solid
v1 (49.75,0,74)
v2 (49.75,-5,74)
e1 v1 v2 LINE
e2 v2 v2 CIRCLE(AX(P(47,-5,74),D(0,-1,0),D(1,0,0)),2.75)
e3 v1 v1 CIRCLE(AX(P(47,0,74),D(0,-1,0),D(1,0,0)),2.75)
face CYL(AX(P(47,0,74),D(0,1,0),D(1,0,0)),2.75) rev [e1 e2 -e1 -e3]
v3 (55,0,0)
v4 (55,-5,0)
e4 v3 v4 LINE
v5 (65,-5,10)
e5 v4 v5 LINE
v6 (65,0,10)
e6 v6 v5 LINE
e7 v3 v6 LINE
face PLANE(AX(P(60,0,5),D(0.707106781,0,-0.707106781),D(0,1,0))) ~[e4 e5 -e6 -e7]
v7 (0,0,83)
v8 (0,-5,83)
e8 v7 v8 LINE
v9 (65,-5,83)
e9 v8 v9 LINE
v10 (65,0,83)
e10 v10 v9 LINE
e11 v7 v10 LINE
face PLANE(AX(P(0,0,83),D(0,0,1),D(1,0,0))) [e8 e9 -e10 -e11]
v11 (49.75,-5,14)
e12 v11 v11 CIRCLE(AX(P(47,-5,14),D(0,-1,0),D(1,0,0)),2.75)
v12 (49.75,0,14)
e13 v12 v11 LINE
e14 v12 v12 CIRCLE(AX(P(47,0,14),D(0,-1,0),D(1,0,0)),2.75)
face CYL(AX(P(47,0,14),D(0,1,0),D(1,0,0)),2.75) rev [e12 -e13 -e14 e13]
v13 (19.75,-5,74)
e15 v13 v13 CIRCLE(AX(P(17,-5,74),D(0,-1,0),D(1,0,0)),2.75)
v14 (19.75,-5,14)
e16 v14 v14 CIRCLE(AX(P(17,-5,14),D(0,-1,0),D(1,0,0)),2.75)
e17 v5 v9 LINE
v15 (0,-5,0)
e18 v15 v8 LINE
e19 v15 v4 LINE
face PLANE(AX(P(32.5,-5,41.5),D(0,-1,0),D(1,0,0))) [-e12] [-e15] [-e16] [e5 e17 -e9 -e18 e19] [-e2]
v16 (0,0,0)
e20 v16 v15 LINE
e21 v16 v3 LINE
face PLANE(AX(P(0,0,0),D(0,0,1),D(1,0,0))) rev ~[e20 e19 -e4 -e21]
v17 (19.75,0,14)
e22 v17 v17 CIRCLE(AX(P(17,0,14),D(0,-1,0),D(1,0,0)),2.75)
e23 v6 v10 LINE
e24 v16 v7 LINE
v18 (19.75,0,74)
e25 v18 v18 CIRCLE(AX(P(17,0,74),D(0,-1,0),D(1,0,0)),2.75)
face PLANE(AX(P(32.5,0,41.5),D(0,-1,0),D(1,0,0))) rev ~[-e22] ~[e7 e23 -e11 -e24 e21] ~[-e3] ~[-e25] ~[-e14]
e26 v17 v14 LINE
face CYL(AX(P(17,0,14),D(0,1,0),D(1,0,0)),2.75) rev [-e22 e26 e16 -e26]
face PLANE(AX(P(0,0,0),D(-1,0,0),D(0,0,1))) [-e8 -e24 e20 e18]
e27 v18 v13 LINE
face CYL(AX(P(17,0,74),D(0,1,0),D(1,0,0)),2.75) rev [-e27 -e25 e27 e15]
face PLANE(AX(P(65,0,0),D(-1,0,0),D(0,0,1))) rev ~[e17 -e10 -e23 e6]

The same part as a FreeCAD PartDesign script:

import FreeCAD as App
import Part
import Sketcher


def edges_at(feature, points):
    """Names of the edges that pass closest to the given points."""
    edges = feature.Shape.Edges
    near = lambda p: min(range(len(edges)), key=lambda i: edges[i].distToShape(Part.Vertex(*p))[0])
    return sorted({f"Edge{near(p) + 1}" for p in points})


def add_polygon(sketch, points):
    """Adds a closed chain of lines whose ends are joined by coincident constraints."""
    first, n = sketch.GeometryCount, len(points)
    for a, b in zip(points, points[1:] + points[:1]):
        sketch.addGeometry(Part.LineSegment(App.Vector(*a, 0), App.Vector(*b, 0)), False)
    for i in range(n):
        sketch.addConstraint(Sketcher.Constraint("Coincident", first + i, 2, first + (i + 1) % n, 1))

doc = App.newDocument("Part")
body = doc.addObject("PartDesign::Body", "Body")

# Sketch on XZ plane
sketch1 = body.newObject("Sketcher::SketchObject", "Sketch")
sketch1.AttachmentSupport = (doc.getObject("XZ_Plane"), [""])
sketch1.MapMode = "FlatFace"
add_polygon(sketch1, [(0, 83), (0, 0), (65, 0), (65, 83)])  # lines 0-3
sketch1.addGeometry(Part.Circle(App.Vector(17, 14, 0), App.Vector(0, 0, 1), 2.8), False)  # 4
sketch1.addGeometry(Part.Circle(App.Vector(47, 14, 0), App.Vector(0, 0, 1), 2.8), False)  # 5
sketch1.addGeometry(Part.Circle(App.Vector(17, 74, 0), App.Vector(0, 0, 1), 2.8), False)  # 6
sketch1.addGeometry(Part.Circle(App.Vector(47, 74, 0), App.Vector(0, 0, 1), 2.8), False)  # 7
sketch1.addConstraint([
    Sketcher.Constraint("Vertical", 0),
    Sketcher.Constraint("Horizontal", 1),
    Sketcher.Constraint("Vertical", 2),
    Sketcher.Constraint("Horizontal", 3),
    Sketcher.Constraint("Coincident", 0, 2, -1, 1),
    Sketcher.Constraint("Equal", 4, 5),
    Sketcher.Constraint("Equal", 5, 6),
    Sketcher.Constraint("Equal", 6, 7),
    Sketcher.Constraint("Horizontal", 4, 3, 5, 3),
    Sketcher.Constraint("Horizontal", 6, 3, 7, 3),
    Sketcher.Constraint("Vertical", 4, 3, 6, 3),
    Sketcher.Constraint("Vertical", 5, 3, 7, 3),
    Sketcher.Constraint("Diameter", 4, 5.5),
    Sketcher.Constraint("DistanceX", 1, 1, 1, 2, 65.0),
    Sketcher.Constraint("DistanceY", 0, 2, 0, 1, 83.0),
    Sketcher.Constraint("DistanceX", -1, 1, 4, 3, 17.0),
    Sketcher.Constraint("DistanceY", -1, 1, 4, 3, 14.0),
    Sketcher.Constraint("DistanceX", -1, 1, 5, 3, 47.0),
    Sketcher.Constraint("DistanceY", -1, 1, 6, 3, 74.0),
])
pad1 = body.newObject("PartDesign::Pad", "Pad")
pad1.Profile = sketch1
pad1.Length = 5
doc.recompute()

chamfer = body.newObject("PartDesign::Chamfer", "Chamfer")
chamfer.Base = (pad1, edges_at(pad1, [(65, -2.5, 0)]))
chamfer.Size = 10

doc.recompute()
